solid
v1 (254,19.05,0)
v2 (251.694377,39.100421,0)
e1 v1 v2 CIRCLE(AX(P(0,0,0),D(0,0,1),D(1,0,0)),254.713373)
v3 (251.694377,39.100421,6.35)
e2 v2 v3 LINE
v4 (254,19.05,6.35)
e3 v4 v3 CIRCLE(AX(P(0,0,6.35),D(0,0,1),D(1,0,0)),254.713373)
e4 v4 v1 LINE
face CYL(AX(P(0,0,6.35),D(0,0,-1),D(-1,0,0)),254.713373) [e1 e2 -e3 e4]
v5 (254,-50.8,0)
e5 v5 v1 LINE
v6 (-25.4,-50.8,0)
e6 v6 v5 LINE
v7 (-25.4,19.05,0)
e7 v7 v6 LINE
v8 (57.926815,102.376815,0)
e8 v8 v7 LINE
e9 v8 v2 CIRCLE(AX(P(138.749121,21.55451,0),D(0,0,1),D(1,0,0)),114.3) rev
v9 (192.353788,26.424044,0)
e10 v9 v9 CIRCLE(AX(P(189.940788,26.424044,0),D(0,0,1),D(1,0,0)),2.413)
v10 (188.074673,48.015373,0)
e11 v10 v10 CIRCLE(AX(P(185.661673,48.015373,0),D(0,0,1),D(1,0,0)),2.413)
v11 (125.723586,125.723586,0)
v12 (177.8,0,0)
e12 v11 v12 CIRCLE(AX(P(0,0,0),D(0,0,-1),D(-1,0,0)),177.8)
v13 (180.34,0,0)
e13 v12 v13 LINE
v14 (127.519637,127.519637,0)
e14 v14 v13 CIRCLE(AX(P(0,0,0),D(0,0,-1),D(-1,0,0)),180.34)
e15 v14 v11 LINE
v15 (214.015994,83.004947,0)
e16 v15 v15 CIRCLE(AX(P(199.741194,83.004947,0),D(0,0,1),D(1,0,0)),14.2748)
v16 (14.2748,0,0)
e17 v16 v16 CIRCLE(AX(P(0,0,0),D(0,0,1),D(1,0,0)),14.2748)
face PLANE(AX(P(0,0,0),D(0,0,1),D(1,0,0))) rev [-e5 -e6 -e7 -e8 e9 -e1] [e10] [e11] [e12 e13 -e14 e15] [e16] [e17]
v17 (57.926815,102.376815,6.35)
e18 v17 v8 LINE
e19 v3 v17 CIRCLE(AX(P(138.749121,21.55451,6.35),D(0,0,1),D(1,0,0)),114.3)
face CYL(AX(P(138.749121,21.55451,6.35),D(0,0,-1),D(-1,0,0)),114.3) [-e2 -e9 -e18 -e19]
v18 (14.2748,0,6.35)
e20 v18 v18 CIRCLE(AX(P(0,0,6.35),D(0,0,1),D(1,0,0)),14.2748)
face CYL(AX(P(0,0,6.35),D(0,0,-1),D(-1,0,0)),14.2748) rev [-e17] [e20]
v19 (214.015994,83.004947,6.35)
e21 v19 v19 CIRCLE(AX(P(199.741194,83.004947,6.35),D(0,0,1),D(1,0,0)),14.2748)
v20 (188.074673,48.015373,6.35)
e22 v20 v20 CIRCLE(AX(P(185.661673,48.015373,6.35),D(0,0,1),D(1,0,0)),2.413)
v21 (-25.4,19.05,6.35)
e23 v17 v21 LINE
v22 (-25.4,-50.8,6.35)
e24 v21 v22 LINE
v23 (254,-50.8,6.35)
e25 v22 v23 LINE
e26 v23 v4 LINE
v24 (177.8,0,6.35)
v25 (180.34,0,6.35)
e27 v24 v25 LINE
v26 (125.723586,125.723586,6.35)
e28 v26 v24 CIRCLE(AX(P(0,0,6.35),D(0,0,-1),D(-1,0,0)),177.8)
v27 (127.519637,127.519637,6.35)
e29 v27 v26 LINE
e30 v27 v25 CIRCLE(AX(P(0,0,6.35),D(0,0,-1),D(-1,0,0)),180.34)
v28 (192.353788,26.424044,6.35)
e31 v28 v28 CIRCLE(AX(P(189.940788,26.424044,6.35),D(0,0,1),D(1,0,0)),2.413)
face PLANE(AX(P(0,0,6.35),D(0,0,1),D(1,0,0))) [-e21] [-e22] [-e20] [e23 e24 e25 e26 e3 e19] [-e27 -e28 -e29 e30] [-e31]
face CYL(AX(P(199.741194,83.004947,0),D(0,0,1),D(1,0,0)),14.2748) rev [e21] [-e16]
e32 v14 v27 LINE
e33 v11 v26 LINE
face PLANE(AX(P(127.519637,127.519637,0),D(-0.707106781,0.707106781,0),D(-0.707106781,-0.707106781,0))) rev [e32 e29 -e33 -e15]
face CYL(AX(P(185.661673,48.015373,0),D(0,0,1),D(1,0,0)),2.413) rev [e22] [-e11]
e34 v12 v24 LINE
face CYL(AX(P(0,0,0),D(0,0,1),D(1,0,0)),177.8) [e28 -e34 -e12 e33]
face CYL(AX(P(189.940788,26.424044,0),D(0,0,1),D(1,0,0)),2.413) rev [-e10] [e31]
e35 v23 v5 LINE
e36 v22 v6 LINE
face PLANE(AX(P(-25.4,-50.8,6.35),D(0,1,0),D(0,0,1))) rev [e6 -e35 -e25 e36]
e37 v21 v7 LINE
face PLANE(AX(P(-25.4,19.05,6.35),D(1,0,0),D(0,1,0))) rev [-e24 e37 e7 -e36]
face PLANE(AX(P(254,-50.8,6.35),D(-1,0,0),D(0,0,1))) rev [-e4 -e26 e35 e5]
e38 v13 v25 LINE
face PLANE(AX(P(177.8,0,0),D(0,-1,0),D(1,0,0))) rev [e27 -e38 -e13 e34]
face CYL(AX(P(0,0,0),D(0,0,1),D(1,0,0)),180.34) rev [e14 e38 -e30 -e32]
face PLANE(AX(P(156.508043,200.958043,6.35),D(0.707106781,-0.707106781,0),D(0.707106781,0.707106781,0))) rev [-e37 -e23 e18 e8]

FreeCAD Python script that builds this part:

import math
import FreeCAD as App
import Part
import Sketcher
Q = App.Units.Quantity


def edges_at(feature, points):
    """Names of the edges that pass closest to the given points."""
    edges = feature.Shape.Edges
    near = lambda p: min(range(len(edges)), key=lambda i: edges[i].distToShape(Part.Vertex(*p))[0])
    return sorted({f"Edge{near(p) + 1}" for p in points})

doc = App.newDocument("Part")
params = doc.addObject("Spreadsheet::Sheet", "Params")
for row, (alias, value) in enumerate([
    ("sketch1_width", "11 in"),
    ("sketch1_diameter", "1.124 in"),
    ("sketch1_height", "2.75 in"),
    ("pad1_length", "0.25 in"),
    ("sketch2_radius", "7 in"),
    ("sketch2_radius2", "7.1 in"),
    ("sketch3_diameter", "1.124 in"),
    ("sketch4_diameter", "0.19 in"),
    ("fillet_radius", "4.5 in"),
], start=1):
    params.set(f"A{row}", alias)
    params.set(f"B{row}", "=" + value)
    params.setAlias(f"B{row}", alias)

body = doc.addObject("PartDesign::Body", "Body")

# Sketch on XY plane
sketch1 = doc.addObject("Sketcher::SketchObject", "Sketch")
body.addObject(sketch1)
sketch1.AttachmentSupport = (doc.XY_Plane, [""])
sketch1.MapMode = "FlatFace"
sketch1.addGeometry([
    Part.LineSegment(App.Vector(-25, -51, 0), App.Vector(254, -51, 0)),  # 0
    Part.LineSegment(App.Vector(254, -51, 0), App.Vector(254, 19, 0)),  # 1
    Part.ArcOfCircle(Part.Circle(App.Vector(0, 0, 0), App.Vector(0, 0, 1), 255), math.radians(4), math.radians(52)),  # 2
    Part.LineSegment(App.Vector(157, 201, 0), App.Vector(-25, 19, 0)),  # 3
    Part.LineSegment(App.Vector(-25, 19, 0), App.Vector(-25, -51, 0)),  # 4
    Part.Circle(App.Vector(0, 0, 0), App.Vector(0, 0, 1), 14),  # 5
], False)
sketch1.addConstraint([
    Sketcher.Constraint("Coincident", 0, 2, 1, 1),
    Sketcher.Constraint("Coincident", 1, 2, 2, 1),
    Sketcher.Constraint("Coincident", 2, 2, 3, 1),
    Sketcher.Constraint("Coincident", 3, 2, 4, 1),
    Sketcher.Constraint("Coincident", 4, 2, 0, 1),
    Sketcher.Constraint("Horizontal", 0),
    Sketcher.Constraint("Vertical", 1),
    Sketcher.Constraint("Vertical", 4),
    Sketcher.Constraint("Coincident", 2, 3, -1, 1),
    Sketcher.Constraint("Coincident", 5, 3, -1, 1),
    Sketcher.Constraint("Horizontal", 1, 2, 3, 2),
    Sketcher.Constraint("DistanceX", 0, 1, 0, 2, Q("11 in")),
    Sketcher.Constraint("Diameter", 5, Q("1.124 in")),
    Sketcher.Constraint("DistanceX", -1, 1, 0, 2, Q("10 in")),
    Sketcher.Constraint("DistanceY", 0, 2, -1, 1, Q("2 in")),
    Sketcher.Constraint("Angle", 3, Q("-135 deg")),
    Sketcher.Constraint("DistanceY", 1, 1, 1, 2, Q("2.75 in")),
])
sketch1.setExpression("Constraints[11]", "Params.sketch1_width")
sketch1.setExpression("Constraints[12]", "Params.sketch1_diameter")
sketch1.setExpression("Constraints[16]", "Params.sketch1_height")
pad1 = doc.addObject("PartDesign::Pad", "Pad")
body.addObject(pad1)
pad1.Profile = sketch1
pad1.setExpression("Length", "Params.pad1_length")

# Sketch on XY plane
sketch2 = doc.addObject("Sketcher::SketchObject", "Sketch001")
body.addObject(sketch2)
sketch2.AttachmentSupport = (doc.XY_Plane, [""])
sketch2.MapMode = "FlatFace"
sketch2.AttachmentOffset = App.Placement(App.Vector(0, 0, 0.25 * 25.4), App.Rotation())
sketch2.addGeometry([
    Part.LineSegment(App.Vector(127.5, 127.5, 0), App.Vector(125.7, 125.7, 0)),
    Part.ArcOfCircle(Part.Circle(App.Vector(0, 0, 0), App.Vector(0, 0, 1), 177.8), math.radians(0), math.radians(45)),
    Part.LineSegment(App.Vector(177.8, 0, 0), App.Vector(180.3, 0, 0)),
    Part.ArcOfCircle(Part.Circle(App.Vector(0, 0, 0), App.Vector(0, 0, 1), 180.3), math.radians(0), math.radians(45)),
], False)
sketch2.addConstraint([
    Sketcher.Constraint("Coincident", 0, 2, 1, 2),
    Sketcher.Constraint("Coincident", 1, 1, 2, 1),
    Sketcher.Constraint("Coincident", 2, 2, 3, 1),
    Sketcher.Constraint("Coincident", 3, 2, 0, 1),
    Sketcher.Constraint("Horizontal", 2),
    Sketcher.Constraint("Coincident", 1, 3, -1, 1),
    Sketcher.Constraint("Coincident", 3, 3, -1, 1),
    Sketcher.Constraint("PointOnObject", 1, 1, -1),
    Sketcher.Constraint("Radius", 1, Q("7 in")),
    Sketcher.Constraint("Radius", 3, Q("7.1 in")),
    Sketcher.Constraint("Angle", 0, Q("-135 deg")),
    Sketcher.Constraint("DistanceX", -1, 1, 0, 2, Q("125.723586 mm")),
])
sketch2.setExpression("Constraints[8]", "Params.sketch2_radius")
sketch2.setExpression("Constraints[9]", "Params.sketch2_radius2")
pocket1 = doc.addObject("PartDesign::Pocket", "Pocket")
body.addObject(pocket1)
pocket1.Profile = sketch2
pocket1.Type = "ThroughAll"

# Sketch on XY plane
sketch3 = doc.addObject("Sketcher::SketchObject", "Sketch002")
body.addObject(sketch3)
sketch3.AttachmentSupport = (doc.XY_Plane, [""])
sketch3.MapMode = "FlatFace"
sketch3.AttachmentOffset = App.Placement(App.Vector(0, 0, 0.25 * 25.4), App.Rotation())
sketch3.addGeometry(Part.Circle(App.Vector(200, 83, 0), App.Vector(0, 0, 1), 14), False)
sketch3.addConstraint([
    Sketcher.Constraint("Diameter", 0, Q("1.124 in")),
    Sketcher.Constraint("DistanceX", -1, 1, 0, 3, Q("199.741194 mm")),
    Sketcher.Constraint("DistanceY", -1, 1, 0, 3, Q("83.004947 mm")),
])
sketch3.setExpression("Constraints[0]", "Params.sketch3_diameter")
pocket2 = doc.addObject("PartDesign::Pocket", "Pocket001")
body.addObject(pocket2)
pocket2.Profile = sketch3
pocket2.Type = "ThroughAll"

# Sketch on XY plane
sketch4 = doc.addObject("Sketcher::SketchObject", "Sketch003")
body.addObject(sketch4)
sketch4.AttachmentSupport = (doc.XY_Plane, [""])
sketch4.MapMode = "FlatFace"
sketch4.AttachmentOffset = App.Placement(App.Vector(0, 0, 0.25 * 25.4), App.Rotation())
sketch4.addGeometry([
    Part.Circle(App.Vector(185.7, 48, 0), App.Vector(0, 0, 1), 2.4),
    Part.Circle(App.Vector(189.9, 26.4, 0), App.Vector(0, 0, 1), 2.4),
], False)
sketch4.addConstraint([
    Sketcher.Constraint("Equal", 0, 1),
    Sketcher.Constraint("Diameter", 0, Q("0.19 in")),
    Sketcher.Constraint("DistanceY", 1, 3, 0, 3, Q("21.591329 mm")),
    Sketcher.Constraint("DistanceX", -1, 1, 0, 3, Q("185.661673 mm")),
    Sketcher.Constraint("DistanceY", -1, 1, 0, 3, Q("48.015373 mm")),
    Sketcher.Constraint("DistanceX", -1, 1, 1, 3, Q("189.940788 mm")),
])
sketch4.setExpression("Constraints[1]", "Params.sketch4_diameter")
pocket3 = doc.addObject("PartDesign::Pocket", "Pocket002")
body.addObject(pocket3)
pocket3.Profile = sketch4
pocket3.Type = "ThroughAll"
pocket3.Midplane = True
doc.recompute()

fillet = doc.addObject("PartDesign::Fillet", "Fillet")
body.addObject(fillet)
fillet.Base = (pocket3, edges_at(pocket3, [(156.508, 200.958, 3.175)]))
fillet.setExpression("Radius", "Params.fillet_radius")

doc.recompute()
